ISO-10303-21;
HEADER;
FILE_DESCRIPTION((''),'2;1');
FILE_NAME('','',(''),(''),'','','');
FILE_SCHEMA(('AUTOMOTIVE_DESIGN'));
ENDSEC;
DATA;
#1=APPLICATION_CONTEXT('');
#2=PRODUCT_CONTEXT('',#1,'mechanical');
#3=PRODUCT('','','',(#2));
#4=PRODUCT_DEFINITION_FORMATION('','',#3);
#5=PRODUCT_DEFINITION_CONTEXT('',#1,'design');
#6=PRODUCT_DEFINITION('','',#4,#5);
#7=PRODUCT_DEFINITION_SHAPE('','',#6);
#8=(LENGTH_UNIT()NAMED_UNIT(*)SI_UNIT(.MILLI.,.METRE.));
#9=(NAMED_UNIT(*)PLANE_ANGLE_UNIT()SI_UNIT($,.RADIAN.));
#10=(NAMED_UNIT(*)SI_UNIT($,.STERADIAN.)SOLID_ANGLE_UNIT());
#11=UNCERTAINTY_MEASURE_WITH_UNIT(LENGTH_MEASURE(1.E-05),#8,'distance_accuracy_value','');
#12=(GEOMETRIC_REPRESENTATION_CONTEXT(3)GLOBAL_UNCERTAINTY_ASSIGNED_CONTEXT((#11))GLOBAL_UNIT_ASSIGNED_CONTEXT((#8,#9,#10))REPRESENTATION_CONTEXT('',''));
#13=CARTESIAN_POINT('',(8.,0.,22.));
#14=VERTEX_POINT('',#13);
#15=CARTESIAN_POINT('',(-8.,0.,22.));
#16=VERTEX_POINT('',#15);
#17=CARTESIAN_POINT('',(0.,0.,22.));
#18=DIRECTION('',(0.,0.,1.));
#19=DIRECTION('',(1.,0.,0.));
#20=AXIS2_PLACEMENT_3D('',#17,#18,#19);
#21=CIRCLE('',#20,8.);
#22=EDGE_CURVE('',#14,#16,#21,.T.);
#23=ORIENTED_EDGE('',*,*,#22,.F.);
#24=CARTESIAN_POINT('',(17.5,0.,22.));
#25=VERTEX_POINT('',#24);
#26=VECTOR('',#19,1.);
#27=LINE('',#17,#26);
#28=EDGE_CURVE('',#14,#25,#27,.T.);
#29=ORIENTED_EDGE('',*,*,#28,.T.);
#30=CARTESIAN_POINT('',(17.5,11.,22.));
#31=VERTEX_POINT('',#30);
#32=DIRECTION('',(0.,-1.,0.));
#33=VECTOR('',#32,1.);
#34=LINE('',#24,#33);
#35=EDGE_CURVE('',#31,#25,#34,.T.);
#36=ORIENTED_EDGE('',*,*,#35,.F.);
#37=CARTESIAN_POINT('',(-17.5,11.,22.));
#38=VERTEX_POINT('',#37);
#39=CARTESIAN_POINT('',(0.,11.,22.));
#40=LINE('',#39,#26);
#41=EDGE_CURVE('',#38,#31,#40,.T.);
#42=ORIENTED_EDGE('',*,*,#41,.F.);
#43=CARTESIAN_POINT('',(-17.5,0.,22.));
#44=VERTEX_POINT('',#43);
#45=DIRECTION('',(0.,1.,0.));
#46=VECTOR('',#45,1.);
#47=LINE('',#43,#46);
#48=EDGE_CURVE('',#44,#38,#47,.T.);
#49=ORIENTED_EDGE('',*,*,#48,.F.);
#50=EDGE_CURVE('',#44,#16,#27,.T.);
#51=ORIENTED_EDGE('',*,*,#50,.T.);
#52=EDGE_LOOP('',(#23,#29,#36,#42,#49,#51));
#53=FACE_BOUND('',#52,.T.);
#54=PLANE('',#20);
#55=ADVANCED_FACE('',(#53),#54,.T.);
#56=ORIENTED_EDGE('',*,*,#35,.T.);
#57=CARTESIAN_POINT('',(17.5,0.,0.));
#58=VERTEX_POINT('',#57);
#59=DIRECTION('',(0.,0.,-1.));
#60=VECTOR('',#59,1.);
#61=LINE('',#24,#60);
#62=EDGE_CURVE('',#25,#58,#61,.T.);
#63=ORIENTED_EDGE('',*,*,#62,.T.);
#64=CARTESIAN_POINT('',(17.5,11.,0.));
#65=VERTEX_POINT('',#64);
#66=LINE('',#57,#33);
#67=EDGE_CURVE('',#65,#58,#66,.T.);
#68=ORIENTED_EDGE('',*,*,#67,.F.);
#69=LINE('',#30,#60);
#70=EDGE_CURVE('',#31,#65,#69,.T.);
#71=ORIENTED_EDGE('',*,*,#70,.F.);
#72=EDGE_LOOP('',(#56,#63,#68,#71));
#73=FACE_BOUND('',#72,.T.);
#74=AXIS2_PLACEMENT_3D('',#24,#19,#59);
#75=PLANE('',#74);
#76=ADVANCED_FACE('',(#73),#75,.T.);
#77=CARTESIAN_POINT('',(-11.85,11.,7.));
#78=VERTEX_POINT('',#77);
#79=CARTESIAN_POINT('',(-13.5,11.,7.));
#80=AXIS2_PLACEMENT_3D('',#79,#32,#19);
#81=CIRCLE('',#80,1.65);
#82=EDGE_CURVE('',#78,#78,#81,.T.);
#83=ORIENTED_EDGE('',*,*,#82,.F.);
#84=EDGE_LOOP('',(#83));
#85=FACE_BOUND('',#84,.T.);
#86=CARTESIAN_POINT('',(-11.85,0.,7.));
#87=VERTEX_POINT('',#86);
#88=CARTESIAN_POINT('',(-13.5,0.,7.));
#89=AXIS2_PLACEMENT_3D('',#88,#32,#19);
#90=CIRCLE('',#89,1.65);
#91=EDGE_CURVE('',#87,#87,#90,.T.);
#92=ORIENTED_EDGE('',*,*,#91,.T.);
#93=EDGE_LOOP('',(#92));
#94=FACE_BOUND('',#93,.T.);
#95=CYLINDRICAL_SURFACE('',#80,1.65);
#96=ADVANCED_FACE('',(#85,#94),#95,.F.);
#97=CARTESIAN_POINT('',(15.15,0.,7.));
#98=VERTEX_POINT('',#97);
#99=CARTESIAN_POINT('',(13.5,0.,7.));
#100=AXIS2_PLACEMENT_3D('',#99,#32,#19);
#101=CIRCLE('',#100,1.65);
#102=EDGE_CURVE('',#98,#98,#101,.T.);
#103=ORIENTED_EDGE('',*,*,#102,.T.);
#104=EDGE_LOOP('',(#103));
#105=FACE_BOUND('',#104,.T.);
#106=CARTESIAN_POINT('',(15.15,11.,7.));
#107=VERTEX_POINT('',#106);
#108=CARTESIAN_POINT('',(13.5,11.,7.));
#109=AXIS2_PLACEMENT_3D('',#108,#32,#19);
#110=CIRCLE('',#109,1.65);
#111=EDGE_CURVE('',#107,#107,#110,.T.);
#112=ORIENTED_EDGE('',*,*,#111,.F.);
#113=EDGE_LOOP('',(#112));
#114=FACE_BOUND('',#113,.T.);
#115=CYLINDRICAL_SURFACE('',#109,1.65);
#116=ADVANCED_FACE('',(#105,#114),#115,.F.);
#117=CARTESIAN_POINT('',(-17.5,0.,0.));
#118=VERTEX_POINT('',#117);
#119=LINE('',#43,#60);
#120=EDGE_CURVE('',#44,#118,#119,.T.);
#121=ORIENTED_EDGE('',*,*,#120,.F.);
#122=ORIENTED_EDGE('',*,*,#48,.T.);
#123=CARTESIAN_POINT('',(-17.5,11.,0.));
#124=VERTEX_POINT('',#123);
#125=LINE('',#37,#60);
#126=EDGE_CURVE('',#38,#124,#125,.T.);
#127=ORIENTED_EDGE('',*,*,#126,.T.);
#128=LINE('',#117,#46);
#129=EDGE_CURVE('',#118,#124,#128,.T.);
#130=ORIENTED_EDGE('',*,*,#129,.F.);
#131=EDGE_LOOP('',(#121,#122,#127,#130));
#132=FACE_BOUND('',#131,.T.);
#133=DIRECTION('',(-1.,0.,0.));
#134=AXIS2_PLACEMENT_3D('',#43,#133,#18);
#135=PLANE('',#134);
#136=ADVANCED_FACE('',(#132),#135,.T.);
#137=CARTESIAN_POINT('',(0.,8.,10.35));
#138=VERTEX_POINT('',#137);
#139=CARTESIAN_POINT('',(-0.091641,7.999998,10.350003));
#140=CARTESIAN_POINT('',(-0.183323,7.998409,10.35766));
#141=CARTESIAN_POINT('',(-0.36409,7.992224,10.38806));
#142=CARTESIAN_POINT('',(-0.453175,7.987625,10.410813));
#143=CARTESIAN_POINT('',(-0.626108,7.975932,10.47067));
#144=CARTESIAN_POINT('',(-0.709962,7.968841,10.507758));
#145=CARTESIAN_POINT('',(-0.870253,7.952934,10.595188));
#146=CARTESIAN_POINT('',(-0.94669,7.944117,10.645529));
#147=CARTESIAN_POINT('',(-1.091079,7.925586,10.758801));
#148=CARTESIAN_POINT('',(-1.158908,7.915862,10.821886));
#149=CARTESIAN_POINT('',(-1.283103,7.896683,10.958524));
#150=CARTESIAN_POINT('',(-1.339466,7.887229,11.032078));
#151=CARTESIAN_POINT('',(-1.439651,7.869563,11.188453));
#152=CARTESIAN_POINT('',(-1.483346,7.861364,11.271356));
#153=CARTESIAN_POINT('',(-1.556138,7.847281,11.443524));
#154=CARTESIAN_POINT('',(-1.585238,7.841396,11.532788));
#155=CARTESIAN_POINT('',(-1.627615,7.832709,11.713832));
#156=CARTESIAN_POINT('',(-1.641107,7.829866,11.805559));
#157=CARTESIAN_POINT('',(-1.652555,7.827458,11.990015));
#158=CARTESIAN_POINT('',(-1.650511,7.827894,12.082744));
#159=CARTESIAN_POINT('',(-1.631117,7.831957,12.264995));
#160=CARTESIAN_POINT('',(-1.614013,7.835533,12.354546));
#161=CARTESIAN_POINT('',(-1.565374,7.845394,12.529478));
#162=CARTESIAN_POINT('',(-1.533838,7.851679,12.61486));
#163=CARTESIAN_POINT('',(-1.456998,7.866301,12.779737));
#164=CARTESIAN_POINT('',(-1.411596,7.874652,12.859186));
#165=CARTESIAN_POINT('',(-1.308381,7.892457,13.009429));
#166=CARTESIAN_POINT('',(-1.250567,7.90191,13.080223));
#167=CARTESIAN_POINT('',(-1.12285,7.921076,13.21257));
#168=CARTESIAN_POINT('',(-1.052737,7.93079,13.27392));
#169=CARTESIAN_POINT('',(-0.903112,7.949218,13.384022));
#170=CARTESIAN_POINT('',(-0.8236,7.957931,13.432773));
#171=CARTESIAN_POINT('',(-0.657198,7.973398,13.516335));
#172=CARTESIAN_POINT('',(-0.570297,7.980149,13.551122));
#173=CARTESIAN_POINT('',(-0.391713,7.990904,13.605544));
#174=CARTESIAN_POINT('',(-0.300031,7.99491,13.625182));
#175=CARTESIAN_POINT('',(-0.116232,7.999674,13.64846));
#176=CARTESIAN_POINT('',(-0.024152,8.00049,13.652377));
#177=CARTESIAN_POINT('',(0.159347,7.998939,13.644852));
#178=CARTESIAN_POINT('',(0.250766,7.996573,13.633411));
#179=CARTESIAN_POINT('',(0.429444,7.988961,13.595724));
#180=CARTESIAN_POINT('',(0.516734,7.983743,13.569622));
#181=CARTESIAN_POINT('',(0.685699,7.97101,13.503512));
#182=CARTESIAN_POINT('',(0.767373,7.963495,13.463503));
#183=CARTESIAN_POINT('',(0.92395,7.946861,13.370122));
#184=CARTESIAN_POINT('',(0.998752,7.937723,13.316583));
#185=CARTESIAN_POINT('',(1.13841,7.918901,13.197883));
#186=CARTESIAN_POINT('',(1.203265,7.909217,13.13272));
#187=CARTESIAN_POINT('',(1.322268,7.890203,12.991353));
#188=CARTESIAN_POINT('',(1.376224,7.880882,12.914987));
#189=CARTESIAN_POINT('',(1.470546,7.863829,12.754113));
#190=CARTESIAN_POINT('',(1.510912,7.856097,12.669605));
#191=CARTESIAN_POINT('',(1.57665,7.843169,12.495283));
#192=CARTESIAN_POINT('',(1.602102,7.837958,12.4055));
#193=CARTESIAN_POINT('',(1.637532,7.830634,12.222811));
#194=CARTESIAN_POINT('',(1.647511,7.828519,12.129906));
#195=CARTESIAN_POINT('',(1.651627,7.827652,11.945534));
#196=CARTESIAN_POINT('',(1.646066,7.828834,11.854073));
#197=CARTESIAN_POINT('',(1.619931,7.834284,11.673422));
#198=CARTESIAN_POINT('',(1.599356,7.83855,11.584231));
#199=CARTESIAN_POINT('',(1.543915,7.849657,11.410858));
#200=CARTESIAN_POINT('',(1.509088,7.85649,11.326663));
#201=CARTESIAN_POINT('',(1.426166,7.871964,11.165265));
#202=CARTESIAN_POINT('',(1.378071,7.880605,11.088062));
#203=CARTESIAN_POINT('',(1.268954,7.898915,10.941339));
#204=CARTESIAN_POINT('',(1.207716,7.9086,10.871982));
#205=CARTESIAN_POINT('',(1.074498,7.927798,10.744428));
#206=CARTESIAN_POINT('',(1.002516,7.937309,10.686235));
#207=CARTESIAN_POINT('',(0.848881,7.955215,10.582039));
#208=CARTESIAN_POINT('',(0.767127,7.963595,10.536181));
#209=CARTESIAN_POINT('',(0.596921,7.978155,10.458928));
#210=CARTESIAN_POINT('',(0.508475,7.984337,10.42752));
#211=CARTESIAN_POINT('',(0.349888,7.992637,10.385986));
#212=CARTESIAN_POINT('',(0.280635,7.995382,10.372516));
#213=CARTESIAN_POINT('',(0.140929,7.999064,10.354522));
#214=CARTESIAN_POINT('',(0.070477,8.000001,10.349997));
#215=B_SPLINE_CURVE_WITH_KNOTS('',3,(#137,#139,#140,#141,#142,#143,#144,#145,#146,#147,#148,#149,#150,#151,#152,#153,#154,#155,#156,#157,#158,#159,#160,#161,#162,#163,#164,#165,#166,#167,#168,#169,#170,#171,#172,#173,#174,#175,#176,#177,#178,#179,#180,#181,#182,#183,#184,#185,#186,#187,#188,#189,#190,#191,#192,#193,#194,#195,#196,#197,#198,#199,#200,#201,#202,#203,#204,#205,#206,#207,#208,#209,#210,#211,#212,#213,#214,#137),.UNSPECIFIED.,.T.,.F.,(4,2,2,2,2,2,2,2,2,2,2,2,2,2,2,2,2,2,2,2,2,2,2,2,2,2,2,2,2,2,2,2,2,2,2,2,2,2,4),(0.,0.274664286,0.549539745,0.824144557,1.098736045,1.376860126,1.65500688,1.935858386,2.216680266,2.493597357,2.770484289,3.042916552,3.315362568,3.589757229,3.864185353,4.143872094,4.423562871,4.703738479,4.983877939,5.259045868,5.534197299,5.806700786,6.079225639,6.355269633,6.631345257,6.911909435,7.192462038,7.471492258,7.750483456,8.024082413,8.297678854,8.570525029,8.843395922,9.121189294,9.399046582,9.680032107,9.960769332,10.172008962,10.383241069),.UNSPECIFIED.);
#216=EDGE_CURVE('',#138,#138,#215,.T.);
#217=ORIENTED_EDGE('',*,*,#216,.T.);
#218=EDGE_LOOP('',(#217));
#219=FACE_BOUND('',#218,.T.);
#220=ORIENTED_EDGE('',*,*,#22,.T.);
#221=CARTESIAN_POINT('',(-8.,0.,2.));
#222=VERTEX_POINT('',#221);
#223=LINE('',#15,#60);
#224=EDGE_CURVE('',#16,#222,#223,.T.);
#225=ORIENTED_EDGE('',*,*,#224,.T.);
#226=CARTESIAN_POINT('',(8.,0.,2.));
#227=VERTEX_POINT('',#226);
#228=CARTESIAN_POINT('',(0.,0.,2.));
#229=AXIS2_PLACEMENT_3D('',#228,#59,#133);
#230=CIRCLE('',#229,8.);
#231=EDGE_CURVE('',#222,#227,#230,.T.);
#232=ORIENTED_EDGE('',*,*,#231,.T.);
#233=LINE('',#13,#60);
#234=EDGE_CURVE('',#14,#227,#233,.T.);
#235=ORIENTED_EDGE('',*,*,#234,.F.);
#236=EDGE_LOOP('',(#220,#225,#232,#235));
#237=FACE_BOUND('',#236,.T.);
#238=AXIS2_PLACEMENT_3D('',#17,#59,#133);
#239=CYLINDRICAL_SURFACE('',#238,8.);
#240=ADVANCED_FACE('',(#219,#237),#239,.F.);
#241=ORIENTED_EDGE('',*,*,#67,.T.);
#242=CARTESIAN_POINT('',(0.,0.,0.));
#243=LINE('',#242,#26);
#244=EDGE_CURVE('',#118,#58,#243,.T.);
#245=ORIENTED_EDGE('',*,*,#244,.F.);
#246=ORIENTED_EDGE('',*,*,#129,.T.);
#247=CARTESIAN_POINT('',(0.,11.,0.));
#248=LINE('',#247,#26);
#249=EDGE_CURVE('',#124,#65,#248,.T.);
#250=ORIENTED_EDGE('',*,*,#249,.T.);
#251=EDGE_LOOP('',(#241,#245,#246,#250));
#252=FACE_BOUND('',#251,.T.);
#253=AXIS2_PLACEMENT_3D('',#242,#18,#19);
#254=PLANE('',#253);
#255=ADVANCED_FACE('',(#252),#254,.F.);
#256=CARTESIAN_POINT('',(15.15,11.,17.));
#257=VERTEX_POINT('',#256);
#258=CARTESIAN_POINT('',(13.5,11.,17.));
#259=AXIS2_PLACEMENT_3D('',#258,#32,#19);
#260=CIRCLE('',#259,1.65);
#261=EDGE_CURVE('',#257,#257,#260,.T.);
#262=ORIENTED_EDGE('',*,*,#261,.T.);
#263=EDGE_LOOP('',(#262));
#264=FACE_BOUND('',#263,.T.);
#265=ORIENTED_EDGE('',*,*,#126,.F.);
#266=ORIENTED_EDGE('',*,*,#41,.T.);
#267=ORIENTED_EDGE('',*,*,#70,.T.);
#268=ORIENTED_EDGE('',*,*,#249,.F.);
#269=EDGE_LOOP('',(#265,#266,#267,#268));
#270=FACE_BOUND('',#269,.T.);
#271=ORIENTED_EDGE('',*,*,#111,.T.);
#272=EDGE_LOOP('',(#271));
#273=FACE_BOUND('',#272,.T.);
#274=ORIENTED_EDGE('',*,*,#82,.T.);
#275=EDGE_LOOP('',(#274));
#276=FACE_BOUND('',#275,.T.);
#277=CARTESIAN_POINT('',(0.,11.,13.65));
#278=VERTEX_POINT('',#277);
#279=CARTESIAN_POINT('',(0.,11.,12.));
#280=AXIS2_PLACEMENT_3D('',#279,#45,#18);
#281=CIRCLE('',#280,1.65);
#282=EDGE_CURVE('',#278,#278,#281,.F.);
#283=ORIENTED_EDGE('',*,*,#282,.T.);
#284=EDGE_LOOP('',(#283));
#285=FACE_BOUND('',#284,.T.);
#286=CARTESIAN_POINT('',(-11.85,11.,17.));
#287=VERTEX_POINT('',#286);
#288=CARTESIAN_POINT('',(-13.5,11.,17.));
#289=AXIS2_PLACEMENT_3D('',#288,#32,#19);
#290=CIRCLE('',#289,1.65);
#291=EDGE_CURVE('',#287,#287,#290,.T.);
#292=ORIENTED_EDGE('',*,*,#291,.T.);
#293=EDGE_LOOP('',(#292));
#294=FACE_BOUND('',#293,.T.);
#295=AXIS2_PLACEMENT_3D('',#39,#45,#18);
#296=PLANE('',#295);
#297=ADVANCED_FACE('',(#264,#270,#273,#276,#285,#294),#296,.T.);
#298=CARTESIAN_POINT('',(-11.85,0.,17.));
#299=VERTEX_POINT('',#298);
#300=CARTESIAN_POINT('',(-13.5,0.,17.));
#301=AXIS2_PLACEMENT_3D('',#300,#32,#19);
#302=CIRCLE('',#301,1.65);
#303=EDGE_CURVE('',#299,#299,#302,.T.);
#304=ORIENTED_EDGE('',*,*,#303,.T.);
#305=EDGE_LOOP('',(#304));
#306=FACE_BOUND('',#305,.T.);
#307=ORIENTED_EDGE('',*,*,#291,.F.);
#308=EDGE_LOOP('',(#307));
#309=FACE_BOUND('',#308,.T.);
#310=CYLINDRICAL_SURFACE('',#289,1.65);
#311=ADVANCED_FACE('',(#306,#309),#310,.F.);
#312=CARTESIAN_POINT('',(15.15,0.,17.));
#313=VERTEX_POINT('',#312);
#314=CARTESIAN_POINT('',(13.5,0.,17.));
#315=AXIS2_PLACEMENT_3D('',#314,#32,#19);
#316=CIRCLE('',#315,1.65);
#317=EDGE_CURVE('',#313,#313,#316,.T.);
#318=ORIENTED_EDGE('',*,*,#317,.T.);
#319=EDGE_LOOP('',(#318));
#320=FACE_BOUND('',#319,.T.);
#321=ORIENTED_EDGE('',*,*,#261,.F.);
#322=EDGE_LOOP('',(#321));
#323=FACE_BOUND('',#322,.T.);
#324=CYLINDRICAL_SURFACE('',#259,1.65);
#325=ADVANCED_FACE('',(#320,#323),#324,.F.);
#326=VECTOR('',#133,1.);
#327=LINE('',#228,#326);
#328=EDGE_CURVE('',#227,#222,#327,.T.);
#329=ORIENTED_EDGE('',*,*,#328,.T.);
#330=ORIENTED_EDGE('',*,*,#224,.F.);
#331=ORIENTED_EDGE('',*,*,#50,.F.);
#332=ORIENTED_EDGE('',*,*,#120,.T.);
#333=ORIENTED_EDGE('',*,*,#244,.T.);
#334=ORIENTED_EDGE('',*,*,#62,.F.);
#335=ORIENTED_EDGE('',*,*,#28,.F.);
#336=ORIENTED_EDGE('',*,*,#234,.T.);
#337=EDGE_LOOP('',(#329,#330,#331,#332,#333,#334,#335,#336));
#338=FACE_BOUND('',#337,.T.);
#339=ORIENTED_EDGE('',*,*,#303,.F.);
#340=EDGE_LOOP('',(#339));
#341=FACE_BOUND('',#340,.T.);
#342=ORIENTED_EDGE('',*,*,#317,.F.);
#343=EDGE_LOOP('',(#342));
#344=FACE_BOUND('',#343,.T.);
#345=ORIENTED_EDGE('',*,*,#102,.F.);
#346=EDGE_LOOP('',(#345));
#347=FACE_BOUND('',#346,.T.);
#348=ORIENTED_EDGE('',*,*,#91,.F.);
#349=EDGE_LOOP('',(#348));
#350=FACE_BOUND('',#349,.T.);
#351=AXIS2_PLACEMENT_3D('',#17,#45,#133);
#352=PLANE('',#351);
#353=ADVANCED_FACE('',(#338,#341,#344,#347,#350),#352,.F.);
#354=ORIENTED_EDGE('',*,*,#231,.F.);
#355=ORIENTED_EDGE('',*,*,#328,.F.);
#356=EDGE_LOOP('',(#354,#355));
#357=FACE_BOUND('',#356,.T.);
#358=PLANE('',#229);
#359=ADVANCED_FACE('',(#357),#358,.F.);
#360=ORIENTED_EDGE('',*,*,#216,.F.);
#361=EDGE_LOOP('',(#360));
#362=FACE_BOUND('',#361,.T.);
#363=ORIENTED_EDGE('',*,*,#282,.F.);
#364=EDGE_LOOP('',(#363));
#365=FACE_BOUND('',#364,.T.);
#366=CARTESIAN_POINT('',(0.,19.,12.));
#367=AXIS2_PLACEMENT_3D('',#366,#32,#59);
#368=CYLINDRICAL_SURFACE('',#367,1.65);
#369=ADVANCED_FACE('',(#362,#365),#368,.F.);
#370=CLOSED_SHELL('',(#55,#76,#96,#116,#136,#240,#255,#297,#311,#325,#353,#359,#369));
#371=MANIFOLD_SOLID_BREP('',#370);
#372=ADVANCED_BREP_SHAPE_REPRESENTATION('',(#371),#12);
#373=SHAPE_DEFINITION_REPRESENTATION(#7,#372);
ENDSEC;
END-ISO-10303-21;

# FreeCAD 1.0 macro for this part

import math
import FreeCAD as App
import Part
import Sketcher
from FreeCAD import Vector

doc = App.newDocument("Part")
params = doc.addObject("Spreadsheet::Sheet", "Params")
for row, (alias, value) in enumerate([
    ("sketch1_radius", "8 mm"),
    ("sketch1_width", "35 mm"),
    ("sketch1_height", "11 mm"),
    ("pad1_length", "22 mm"),
    ("sketch2_diameter", "3.3 mm"),
    ("pocket1_length", "19 mm"),
    ("sketch3_radius", "11 mm"),
    ("pad2_length", "2 mm"),
    ("sketch4_diameter", "3.3 mm"),
], start=1):
    params.set(f"A{row}", alias)
    params.set(f"B{row}", "=" + value)
    params.setAlias(f"B{row}", alias)

body = doc.addObject("PartDesign::Body", "Body")

# Sketch on XY plane
sketch1 = doc.addObject("Sketcher::SketchObject", "Sketch")
body.addObject(sketch1)
sketch1.AttachmentSupport = (doc.XY_Plane, [""])
sketch1.MapMode = "FlatFace"
sketch1.addGeometry(Part.LineSegment(Vector(-17.5, 0, 0), Vector(-8, 0, 0)), False)
sketch1.addGeometry(Part.ArcOfCircle(Part.Circle(Vector(0, 0, 0), Vector(0, 0, 1), 8), math.radians(158), math.radians(180)), False)
sketch1.addGeometry(Part.ArcOfCircle(Part.Circle(Vector(0, 0, 0), Vector(0, 0, 1), 8), math.radians(22), math.radians(158)), False)
sketch1.addGeometry(Part.ArcOfCircle(Part.Circle(Vector(0, 0, 0), Vector(0, 0, 1), 8), math.radians(0), math.radians(22)), False)
sketch1.addGeometry(Part.LineSegment(Vector(8, 0, 0), Vector(17.5, 0, 0)), False)
sketch1.addGeometry(Part.LineSegment(Vector(17.5, 0, 0), Vector(17.5, 11, 0)), False)
sketch1.addGeometry(Part.LineSegment(Vector(17.5, 11, 0), Vector(-17.5, 11, 0)), False)
sketch1.addGeometry(Part.LineSegment(Vector(-17.5, 11, 0), Vector(-17.5, 0, 0)), False)
sketch1.addConstraint(Sketcher.Constraint("Coincident", 0, 2, 1, 2))
sketch1.addConstraint(Sketcher.Constraint("Tangent", 1, 1, 2, 2))
sketch1.addConstraint(Sketcher.Constraint("Tangent", 2, 1, 3, 2))
sketch1.addConstraint(Sketcher.Constraint("Coincident", 3, 1, 4, 1))
sketch1.addConstraint(Sketcher.Constraint("Coincident", 4, 2, 5, 1))
sketch1.addConstraint(Sketcher.Constraint("Coincident", 5, 2, 6, 1))
sketch1.addConstraint(Sketcher.Constraint("Coincident", 6, 2, 7, 1))
sketch1.addConstraint(Sketcher.Constraint("Coincident", 7, 2, 0, 1))
sketch1.addConstraint(Sketcher.Constraint("Horizontal", 0))
sketch1.addConstraint(Sketcher.Constraint("Horizontal", 4))
sketch1.addConstraint(Sketcher.Constraint("Vertical", 5))
sketch1.addConstraint(Sketcher.Constraint("Horizontal", 6))
sketch1.addConstraint(Sketcher.Constraint("Vertical", 7))
sketch1.addConstraint(Sketcher.Constraint("Coincident", 1, 3, -1, 1))
sketch1.addConstraint(Sketcher.Constraint("Coincident", 3, 3, -1, 1))
sketch1.addConstraint(Sketcher.Constraint("Symmetric", 4, 2, 7, 2, -1, 1))
sketch1.addConstraint(Sketcher.Constraint("PointOnObject", 0, 2, -1))
sketch1.addConstraint(Sketcher.Constraint("Horizontal", 1, 1, 2, 1))
sketch1.addConstraint(Sketcher.Constraint("Radius", 1, 8.0))
sketch1.addConstraint(Sketcher.Constraint("DistanceX", 6, 2, 6, 1, 35.0))
sketch1.addConstraint(Sketcher.Constraint("DistanceY", 5, 1, 5, 2, 11.0))
sketch1.addConstraint(Sketcher.Constraint("DistanceY", -1, 1, 1, 1, 3.0))
sketch1.setExpression("Constraints[18]", "Params.sketch1_radius")
sketch1.setExpression("Constraints[19]", "Params.sketch1_width")
sketch1.setExpression("Constraints[20]", "Params.sketch1_height")
pad1 = doc.addObject("PartDesign::Pad", "Pad")
body.addObject(pad1)
pad1.Profile = sketch1
pad1.setExpression("Length", "Params.pad1_length")

# Sketch on XZ plane
sketch2 = doc.addObject("Sketcher::SketchObject", "Sketch001")
body.addObject(sketch2)
sketch2.AttachmentSupport = (doc.XZ_Plane, [""])
sketch2.MapMode = "FlatFace"
sketch2.addGeometry(Part.Circle(Vector(0, 12, 0), Vector(0, 0, 1), 1.6), False)
sketch2.addConstraint(Sketcher.Constraint("PointOnObject", 0, 3, -2))
sketch2.addConstraint(Sketcher.Constraint("Diameter", 0, 3.3))
sketch2.addConstraint(Sketcher.Constraint("DistanceY", -1, 1, 0, 3, 12.0))
sketch2.setExpression("Constraints[1]", "Params.sketch2_diameter")
pocket1 = doc.addObject("PartDesign::Pocket", "Pocket")
body.addObject(pocket1)
pocket1.Profile = sketch2
pocket1.setExpression("Length", "Params.pocket1_length")

# Sketch on XY plane
sketch3 = doc.addObject("Sketcher::SketchObject", "Sketch002")
body.addObject(sketch3)
sketch3.AttachmentSupport = (doc.XY_Plane, [""])
sketch3.MapMode = "FlatFace"
sketch3.addGeometry(Part.LineSegment(Vector(11, 0, 0), Vector(-11, 0, 0)), False)
sketch3.addGeometry(Part.ArcOfCircle(Part.Circle(Vector(0, 0, 0), Vector(0, 0, 1), 11), math.radians(0), math.radians(180)), False)
sketch3.addConstraint(Sketcher.Constraint("Coincident", 0, 1, 1, 1))
sketch3.addConstraint(Sketcher.Constraint("Coincident", 1, 2, 0, 2))
sketch3.addConstraint(Sketcher.Constraint("Horizontal", 0))
sketch3.addConstraint(Sketcher.Constraint("Coincident", 1, 3, -1, 1))
sketch3.addConstraint(Sketcher.Constraint("PointOnObject", 0, 1, -1))
sketch3.addConstraint(Sketcher.Constraint("Radius", 1, 11.0))
sketch3.setExpression("Constraints[5]", "Params.sketch3_radius")
pad2 = doc.addObject("PartDesign::Pad", "Pad001")
body.addObject(pad2)
pad2.Profile = sketch3
pad2.setExpression("Length", "Params.pad2_length")

# Sketch on XZ plane
sketch4 = doc.addObject("Sketcher::SketchObject", "Sketch003")
body.addObject(sketch4)
sketch4.AttachmentSupport = (doc.XZ_Plane, [""])
sketch4.MapMode = "FlatFace"
sketch4.addGeometry(Part.Circle(Vector(-13.5, 17, 0), Vector(0, 0, 1), 1.6), False)
sketch4.addGeometry(Part.Circle(Vector(-13.5, 7, 0), Vector(0, 0, 1), 1.6), False)
sketch4.addGeometry(Part.Circle(Vector(13.5, 17, 0), Vector(0, 0, 1), 1.6), False)
sketch4.addGeometry(Part.Circle(Vector(13.5, 7, 0), Vector(0, 0, 1), 1.6), False)
sketch4.addConstraint(Sketcher.Constraint("Equal", 0, 1))
sketch4.addConstraint(Sketcher.Constraint("Equal", 1, 2))
sketch4.addConstraint(Sketcher.Constraint("Equal", 2, 3))
sketch4.addConstraint(Sketcher.Constraint("Symmetric", 0, 3, 2, 3, -2))
sketch4.addConstraint(Sketcher.Constraint("Symmetric", 1, 3, 3, 3, -2))
sketch4.addConstraint(Sketcher.Constraint("Vertical", 0, 3, 1, 3))
sketch4.addConstraint(Sketcher.Constraint("Diameter", 0, 3.3))
sketch4.addConstraint(Sketcher.Constraint("DistanceY", -1, 1, 0, 3, 17.0))
sketch4.addConstraint(Sketcher.Constraint("DistanceY", -1, 1, 1, 3, 7.0))
sketch4.addConstraint(Sketcher.Constraint("DistanceX", 0, 3, 2, 3, 27.0))
sketch4.setExpression("Constraints[6]", "Params.sketch4_diameter")
pocket2 = doc.addObject("PartDesign::Pocket", "Pocket001")
body.addObject(pocket2)
pocket2.Profile = sketch4
pocket2.Type = "ThroughAll"

doc.recompute()
